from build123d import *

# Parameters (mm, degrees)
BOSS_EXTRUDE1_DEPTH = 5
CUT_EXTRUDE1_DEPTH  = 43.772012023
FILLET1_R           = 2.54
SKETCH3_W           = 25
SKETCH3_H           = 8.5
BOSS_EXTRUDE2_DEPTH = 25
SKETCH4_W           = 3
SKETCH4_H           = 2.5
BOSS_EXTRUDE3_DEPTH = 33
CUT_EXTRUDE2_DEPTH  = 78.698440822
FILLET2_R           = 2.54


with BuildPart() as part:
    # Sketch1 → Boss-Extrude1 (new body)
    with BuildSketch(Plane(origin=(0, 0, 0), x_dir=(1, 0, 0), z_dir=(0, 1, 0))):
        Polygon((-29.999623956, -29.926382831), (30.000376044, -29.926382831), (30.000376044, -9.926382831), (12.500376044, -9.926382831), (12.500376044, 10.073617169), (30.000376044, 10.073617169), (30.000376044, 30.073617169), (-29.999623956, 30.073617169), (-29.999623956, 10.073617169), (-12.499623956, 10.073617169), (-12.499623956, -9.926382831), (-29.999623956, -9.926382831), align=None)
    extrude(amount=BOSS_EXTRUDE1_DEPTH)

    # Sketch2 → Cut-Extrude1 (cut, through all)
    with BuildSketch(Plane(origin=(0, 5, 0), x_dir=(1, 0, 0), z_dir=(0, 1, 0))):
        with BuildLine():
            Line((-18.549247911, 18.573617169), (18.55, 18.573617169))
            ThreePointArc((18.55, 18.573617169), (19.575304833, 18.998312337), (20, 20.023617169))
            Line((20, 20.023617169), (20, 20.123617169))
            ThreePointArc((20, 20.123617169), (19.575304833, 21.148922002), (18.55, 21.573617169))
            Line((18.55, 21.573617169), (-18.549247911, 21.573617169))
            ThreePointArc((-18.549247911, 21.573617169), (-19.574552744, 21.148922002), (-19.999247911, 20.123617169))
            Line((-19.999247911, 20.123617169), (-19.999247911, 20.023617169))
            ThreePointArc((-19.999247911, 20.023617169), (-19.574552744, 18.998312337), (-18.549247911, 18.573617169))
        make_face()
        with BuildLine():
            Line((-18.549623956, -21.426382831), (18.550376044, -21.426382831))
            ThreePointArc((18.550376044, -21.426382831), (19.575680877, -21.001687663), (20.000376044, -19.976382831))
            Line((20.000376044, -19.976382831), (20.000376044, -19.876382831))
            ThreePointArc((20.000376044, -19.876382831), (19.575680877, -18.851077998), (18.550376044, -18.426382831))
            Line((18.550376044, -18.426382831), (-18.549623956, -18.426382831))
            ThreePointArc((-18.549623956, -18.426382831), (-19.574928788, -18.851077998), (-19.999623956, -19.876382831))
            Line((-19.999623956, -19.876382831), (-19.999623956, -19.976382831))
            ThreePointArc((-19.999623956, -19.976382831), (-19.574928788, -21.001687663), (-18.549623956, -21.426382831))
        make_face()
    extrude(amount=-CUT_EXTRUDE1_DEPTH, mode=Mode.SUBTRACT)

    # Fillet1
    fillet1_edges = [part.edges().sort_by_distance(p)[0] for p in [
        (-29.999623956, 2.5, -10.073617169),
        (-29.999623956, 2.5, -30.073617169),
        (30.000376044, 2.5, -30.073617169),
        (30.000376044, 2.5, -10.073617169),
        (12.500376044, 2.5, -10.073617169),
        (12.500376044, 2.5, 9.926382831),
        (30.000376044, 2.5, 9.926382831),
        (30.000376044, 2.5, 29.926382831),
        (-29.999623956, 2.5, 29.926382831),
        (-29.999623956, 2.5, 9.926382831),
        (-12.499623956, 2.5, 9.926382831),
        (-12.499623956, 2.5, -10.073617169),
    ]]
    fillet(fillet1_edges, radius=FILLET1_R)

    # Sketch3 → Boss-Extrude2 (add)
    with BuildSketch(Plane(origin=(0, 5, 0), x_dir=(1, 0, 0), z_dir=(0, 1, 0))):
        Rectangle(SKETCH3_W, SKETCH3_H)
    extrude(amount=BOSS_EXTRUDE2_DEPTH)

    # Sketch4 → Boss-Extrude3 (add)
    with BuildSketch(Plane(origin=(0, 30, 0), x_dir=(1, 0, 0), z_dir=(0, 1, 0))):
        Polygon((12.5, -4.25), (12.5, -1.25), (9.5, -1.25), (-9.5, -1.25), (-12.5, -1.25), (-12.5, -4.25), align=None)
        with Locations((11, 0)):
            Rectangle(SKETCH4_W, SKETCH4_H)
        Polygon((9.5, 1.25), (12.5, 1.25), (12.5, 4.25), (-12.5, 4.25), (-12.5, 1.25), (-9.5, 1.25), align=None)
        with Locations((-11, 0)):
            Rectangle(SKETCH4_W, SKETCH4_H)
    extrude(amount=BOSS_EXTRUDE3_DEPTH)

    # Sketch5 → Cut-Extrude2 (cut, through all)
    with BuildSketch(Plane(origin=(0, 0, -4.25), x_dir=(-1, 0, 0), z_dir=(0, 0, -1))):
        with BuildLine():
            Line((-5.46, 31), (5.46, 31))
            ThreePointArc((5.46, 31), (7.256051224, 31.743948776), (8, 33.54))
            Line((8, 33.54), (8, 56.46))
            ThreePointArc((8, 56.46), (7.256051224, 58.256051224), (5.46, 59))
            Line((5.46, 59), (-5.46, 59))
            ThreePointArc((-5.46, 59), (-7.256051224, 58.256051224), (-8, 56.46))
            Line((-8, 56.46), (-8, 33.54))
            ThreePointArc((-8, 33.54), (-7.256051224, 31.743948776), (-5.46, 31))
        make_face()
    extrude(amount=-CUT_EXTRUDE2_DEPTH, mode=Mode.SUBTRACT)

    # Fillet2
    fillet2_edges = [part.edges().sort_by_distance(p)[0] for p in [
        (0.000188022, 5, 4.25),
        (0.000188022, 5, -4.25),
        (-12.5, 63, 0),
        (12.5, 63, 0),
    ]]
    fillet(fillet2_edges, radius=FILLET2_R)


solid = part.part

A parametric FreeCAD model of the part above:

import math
import FreeCAD as App
import Part
import Sketcher

V = App.Vector
Q = App.Units.Quantity


def edges_at(feature, points):
    """Names of the edges that pass closest to the given points."""
    edges = feature.Shape.Edges
    near = lambda p: min(range(len(edges)), key=lambda i: edges[i].distToShape(Part.Vertex(*p))[0])
    return sorted({f"Edge{near(p) + 1}" for p in points})


def add_polygon(sketch, points):
    """Adds a closed chain of lines whose ends are joined by coincident constraints."""
    first, n = sketch.GeometryCount, len(points)
    for a, b in zip(points, points[1:] + points[:1]):
        sketch.addGeometry(Part.LineSegment(App.Vector(*a, 0), App.Vector(*b, 0)), False)
    for i in range(n):
        sketch.addConstraint(Sketcher.Constraint("Coincident", first + i, 2, first + (i + 1) % n, 1))

doc = App.newDocument("Part")
body = doc.addObject("PartDesign::Body", "Body")

# Sketch on XZ plane
sketch1 = body.newObject("Sketcher::SketchObject", "Sketch")
sketch1.AttachmentSupport = (doc.getObject("XZ_Plane"), [""])
sketch1.MapMode = "FlatFace"
add_polygon(sketch1, [(-29.999624, 29.926383), (30.000376, 29.926383), (30.000376, 9.926383), (12.500376, 9.926383), (12.500376, -10.073617), (30.000376, -10.073617), (30.000376, -30.073617), (-29.999624, -30.073617), (-29.999624, -10.073617), (-12.499624, -10.073617), (-12.499624, 9.926383), (-29.999624, 9.926383)])  # lines 0-11
sketch1.addConstraint([
    Sketcher.Constraint("Horizontal", 0),
    Sketcher.Constraint("Vertical", 1),
    Sketcher.Constraint("Horizontal", 2),
    Sketcher.Constraint("Vertical", 3),
    Sketcher.Constraint("Horizontal", 4),
    Sketcher.Constraint("Vertical", 5),
    Sketcher.Constraint("Horizontal", 6),
    Sketcher.Constraint("Vertical", 7),
    Sketcher.Constraint("Horizontal", 8),
    Sketcher.Constraint("Vertical", 9),
    Sketcher.Constraint("Horizontal", 10),
    Sketcher.Constraint("Vertical", 11),
    Sketcher.Constraint("Horizontal", 4, 2, 7, 2),
    Sketcher.Constraint("Horizontal", 2, 2, 9, 2),
    Sketcher.Constraint("Vertical", 1, 2, 4, 2),
    Sketcher.Constraint("Vertical", 7, 2, 10, 2),
    Sketcher.Constraint("Equal", 4, 8),
    Sketcher.Constraint("Equal", 1, 3),
    Sketcher.Constraint("Equal", 3, 5),
    Sketcher.Constraint("DistanceX", 0, 1, 0, 2, Q("60 mm")),
    Sketcher.Constraint("DistanceY", 1, 2, 1, 1, Q("20 mm")),
    Sketcher.Constraint("DistanceX", 2, 2, 2, 1, Q("17.5 mm")),
    Sketcher.Constraint("DistanceX", -1, 1, 0, 2, Q("30.000376 mm")),
    Sketcher.Constraint("DistanceY", -1, 1, 0, 2, Q("29.926383 mm")),
])
pad1 = body.newObject("PartDesign::Pad", "Pad")
pad1.Profile = sketch1
pad1.Length = 5
pad1.Reversed = True

# Sketch on XZ plane
sketch2 = body.newObject("Sketcher::SketchObject", "Sketch001")
sketch2.AttachmentSupport = (doc.getObject("XZ_Plane"), [""])
sketch2.MapMode = "FlatFace"
sketch2.AttachmentOffset = App.Placement(V(0, 0, -5), App.Rotation())
sketch2.addGeometry([
    Part.LineSegment(V(-18.549248, -18.573617, 0), V(18.55, -18.573617, 0)),  # 0
    Part.ArcOfCircle(Part.Circle(V(18.55, -20.023617, 0), V(0, 0, 1), 1.45), math.radians(0), math.radians(90)),  # 1
    Part.LineSegment(V(20, -20.023617, 0), V(20, -20.123617, 0)),  # 2
    Part.ArcOfCircle(Part.Circle(V(18.55, -20.123617, 0), V(0, 0, 1), 1.45), math.radians(-90), math.radians(0)),  # 3
    Part.LineSegment(V(18.55, -21.573617, 0), V(-18.549248, -21.573617, 0)),  # 4
    Part.ArcOfCircle(Part.Circle(V(-18.549248, -20.123617, 0), V(0, 0, 1), 1.45), math.radians(180), math.radians(270)),  # 5
    Part.LineSegment(V(-19.999248, -20.123617, 0), V(-19.999248, -20.023617, 0)),  # 6
    Part.ArcOfCircle(Part.Circle(V(-18.549248, -20.023617, 0), V(0, 0, 1), 1.45), math.radians(90), math.radians(180)),  # 7
    Part.LineSegment(V(-18.549624, 21.426383, 0), V(18.550376, 21.426383, 0)),  # 8
    Part.ArcOfCircle(Part.Circle(V(18.550376, 19.976383, 0), V(0, 0, 1), 1.45), math.radians(0), math.radians(90)),  # 9
    Part.LineSegment(V(20.000376, 19.976383, 0), V(20.000376, 19.876383, 0)),  # 10
    Part.ArcOfCircle(Part.Circle(V(18.550376, 19.876383, 0), V(0, 0, 1), 1.45), math.radians(-90), math.radians(0)),  # 11
    Part.LineSegment(V(18.550376, 18.426383, 0), V(-18.549624, 18.426383, 0)),  # 12
    Part.ArcOfCircle(Part.Circle(V(-18.549624, 19.876383, 0), V(0, 0, 1), 1.45), math.radians(-180), math.radians(-90)),  # 13
    Part.LineSegment(V(-19.999624, 19.876383, 0), V(-19.999624, 19.976383, 0)),  # 14
    Part.ArcOfCircle(Part.Circle(V(-18.549624, 19.976383, 0), V(0, 0, 1), 1.45), math.radians(90), math.radians(180)),  # 15
], False)
sketch2.addConstraint([
    Sketcher.Constraint("Tangent", 0, 2, 1, 2),
    Sketcher.Constraint("Tangent", 1, 1, 2, 1),
    Sketcher.Constraint("Tangent", 2, 2, 3, 2),
    Sketcher.Constraint("Tangent", 3, 1, 4, 1),
    Sketcher.Constraint("Tangent", 4, 2, 5, 2),
    Sketcher.Constraint("Tangent", 5, 1, 6, 1),
    Sketcher.Constraint("Tangent", 6, 2, 7, 2),
    Sketcher.Constraint("Tangent", 7, 1, 0, 1),
    Sketcher.Constraint("Tangent", 8, 2, 9, 2),
    Sketcher.Constraint("Tangent", 9, 1, 10, 1),
    Sketcher.Constraint("Tangent", 10, 2, 11, 2),
    Sketcher.Constraint("Tangent", 11, 1, 12, 1),
    Sketcher.Constraint("Tangent", 12, 2, 13, 2),
    Sketcher.Constraint("Tangent", 13, 1, 14, 1),
    Sketcher.Constraint("Tangent", 14, 2, 15, 2),
    Sketcher.Constraint("Tangent", 15, 1, 8, 1),
    Sketcher.Constraint("Horizontal", 0),
    Sketcher.Constraint("Vertical", 2),
    Sketcher.Constraint("Horizontal", 4),
    Sketcher.Constraint("Vertical", 6),
    Sketcher.Constraint("Horizontal", 8),
    Sketcher.Constraint("Vertical", 10),
    Sketcher.Constraint("Horizontal", 12),
    Sketcher.Constraint("Vertical", 14),
    Sketcher.Constraint("Equal", 1, 3),
    Sketcher.Constraint("Equal", 3, 5),
    Sketcher.Constraint("Equal", 5, 7),
    Sketcher.Constraint("Equal", 7, 9),
    Sketcher.Constraint("Equal", 9, 11),
    Sketcher.Constraint("Equal", 11, 13),
    Sketcher.Constraint("Equal", 13, 15),
    Sketcher.Constraint("Equal", 6, 10),
    Sketcher.Constraint("Radius", 1, Q("1.45 mm")),
    Sketcher.Constraint("DistanceX", 8, 1, 8, 2, Q("37.1 mm")),
    Sketcher.Constraint("DistanceY", 2, 2, 2, 1, Q("0.1 mm")),
    Sketcher.Constraint("DistanceX", -1, 1, 1, 1, Q("20 mm")),
    Sketcher.Constraint("DistanceY", 1, 3, 9, 3, Q("40 mm")),
    Sketcher.Constraint("DistanceX", 0, 1, 0, 2, Q("37.099248 mm")),
    Sketcher.Constraint("DistanceY", 1, 3, -1, 1, Q("20.023617 mm")),
    Sketcher.Constraint("DistanceX", -1, 1, 9, 3, Q("18.550376 mm")),
])
pocket1 = body.newObject("PartDesign::Pocket", "Pocket")
pocket1.Profile = sketch2
pocket1.Type = "ThroughAll"
pocket1.Reversed = True
doc.recompute()

fillet = body.newObject("PartDesign::Fillet", "Fillet")
fillet.Base = (pocket1, edges_at(pocket1, [
    (-30, 2.5, -10.074),
    (-30, 2.5, -30.074),
    (30, 2.5, -30.074),
    (30, 2.5, -10.074),
    (12.5, 2.5, -10.074),
    (12.5, 2.5, 9.926),
    (30, 2.5, 9.926),
    (30, 2.5, 29.926),
    (-30, 2.5, 29.926),
    (-30, 2.5, 9.926),
    (-12.5, 2.5, 9.926),
    (-12.5, 2.5, -10.074),
]))
fillet.Radius = 2.54

# Sketch on XZ plane
sketch3 = body.newObject("Sketcher::SketchObject", "Sketch002")
sketch3.AttachmentSupport = (doc.getObject("XZ_Plane"), [""])
sketch3.MapMode = "FlatFace"
sketch3.AttachmentOffset = App.Placement(V(0, 0, -5), App.Rotation())
add_polygon(sketch3, [(-12.5, -4.25), (-12.5, 4.25), (12.5, 4.25), (12.5, -4.25)])  # lines 0-3
sketch3.addConstraint([
    Sketcher.Constraint("Vertical", 0),
    Sketcher.Constraint("Horizontal", 1),
    Sketcher.Constraint("Vertical", 2),
    Sketcher.Constraint("Horizontal", 3),
    Sketcher.Constraint("Symmetric", 0, 2, 2, 2, -1, 1),
    Sketcher.Constraint("DistanceX", 1, 1, 1, 2, Q("25 mm")),
    Sketcher.Constraint("DistanceY", 0, 1, 0, 2, Q("8.5 mm")),
])
pad2 = body.newObject("PartDesign::Pad", "Pad001")
pad2.Profile = sketch3
pad2.Length = 25
pad2.Reversed = True

# Sketch on XZ plane
sketch4 = body.newObject("Sketcher::SketchObject", "Sketch003")
sketch4.AttachmentSupport = (doc.getObject("XZ_Plane"), [""])
sketch4.MapMode = "FlatFace"
sketch4.AttachmentOffset = App.Placement(V(0, 0, -30), App.Rotation())
add_polygon(sketch4, [(12.5, 4.25), (12.5, -4.25), (-12.5, -4.25), (-12.5, 4.25)])  # lines 0-3
add_polygon(sketch4, [(-9.5, -1.25), (9.5, -1.25), (9.5, 1.25), (-9.5, 1.25)])  # lines 4-7
sketch4.addConstraint([
    Sketcher.Constraint("Vertical", 0),
    Sketcher.Constraint("Horizontal", 1),
    Sketcher.Constraint("Vertical", 2),
    Sketcher.Constraint("Horizontal", 3),
    Sketcher.Constraint("Horizontal", 4),
    Sketcher.Constraint("Vertical", 5),
    Sketcher.Constraint("Horizontal", 6),
    Sketcher.Constraint("Vertical", 7),
    Sketcher.Constraint("Symmetric", 0, 2, 2, 2, -1, 1),
    Sketcher.Constraint("Symmetric", 4, 2, 6, 2, -1, 1),
    Sketcher.Constraint("DistanceX", 1, 2, 1, 1, Q("25 mm")),
    Sketcher.Constraint("DistanceX", 4, 1, 4, 2, Q("19 mm")),
    Sketcher.Constraint("DistanceY", 0, 2, 0, 1, Q("8.5 mm")),
    Sketcher.Constraint("DistanceY", 5, 1, 5, 2, Q("2.5 mm")),
])
pad3 = body.newObject("PartDesign::Pad", "Pad002")
pad3.Profile = sketch4
pad3.Length = 33
pad3.Reversed = True

# Sketch on XY plane
sketch5 = body.newObject("Sketcher::SketchObject", "Sketch004")
sketch5.AttachmentSupport = (doc.getObject("XY_Plane"), [""])
sketch5.MapMode = "FlatFace"
sketch5.AttachmentOffset = App.Placement(V(0, 0, -4.25), App.Rotation())
sketch5.addGeometry([
    Part.LineSegment(V(5.46, 31, 0), V(-5.46, 31, 0)),  # 0
    Part.ArcOfCircle(Part.Circle(V(-5.46, 33.54, 0), V(0, 0, 1), 2.54), math.radians(-180), math.radians(-90)),  # 1
    Part.LineSegment(V(-8, 33.54, 0), V(-8, 56.46, 0)),  # 2
    Part.ArcOfCircle(Part.Circle(V(-5.46, 56.46, 0), V(0, 0, 1), 2.54), math.radians(90), math.radians(180)),  # 3
    Part.LineSegment(V(-5.46, 59, 0), V(5.46, 59, 0)),  # 4
    Part.ArcOfCircle(Part.Circle(V(5.46, 56.46, 0), V(0, 0, 1), 2.54), math.radians(0), math.radians(90)),  # 5
    Part.LineSegment(V(8, 56.46, 0), V(8, 33.54, 0)),  # 6
    Part.ArcOfCircle(Part.Circle(V(5.46, 33.54, 0), V(0, 0, 1), 2.54), math.radians(-90), math.radians(0)),  # 7
], False)
sketch5.addConstraint([
    Sketcher.Constraint("Tangent", 0, 2, 1, 2),
    Sketcher.Constraint("Tangent", 1, 1, 2, 1),
    Sketcher.Constraint("Tangent", 2, 2, 3, 2),
    Sketcher.Constraint("Tangent", 3, 1, 4, 1),
    Sketcher.Constraint("Tangent", 4, 2, 5, 2),
    Sketcher.Constraint("Tangent", 5, 1, 6, 1),
    Sketcher.Constraint("Tangent", 6, 2, 7, 2),
    Sketcher.Constraint("Tangent", 7, 1, 0, 1),
    Sketcher.Constraint("Horizontal", 0),
    Sketcher.Constraint("Vertical", 2),
    Sketcher.Constraint("Horizontal", 4),
    Sketcher.Constraint("Vertical", 6),
    Sketcher.Constraint("Equal", 1, 3),
    Sketcher.Constraint("Equal", 3, 5),
    Sketcher.Constraint("Equal", 5, 7),
    Sketcher.Constraint("Radius", 1, Q("2.54 mm")),
    Sketcher.Constraint("DistanceY", -1, 1, 0, 2, Q("31 mm")),
    Sketcher.Constraint("DistanceX", 1, 1, -1, 1, Q("8 mm")),
    Sketcher.Constraint("DistanceY", -1, 1, 3, 1, Q("59 mm")),
    Sketcher.Constraint("DistanceX", -1, 1, 5, 1, Q("8 mm")),
])
pocket2 = body.newObject("PartDesign::Pocket", "Pocket001")
pocket2.Profile = sketch5
pocket2.Type = "ThroughAll"
pocket2.Reversed = True
doc.recompute()

fillet2 = body.newObject("PartDesign::Fillet", "Fillet001")
fillet2.Base = (pocket2, edges_at(pocket2, [
    (0, 5, 4.25),
    (0, 5, -4.25),
    (-12.5, 63, 0),
    (12.5, 63, 0),
]))
fillet2.Radius = 2.54

doc.recompute()
